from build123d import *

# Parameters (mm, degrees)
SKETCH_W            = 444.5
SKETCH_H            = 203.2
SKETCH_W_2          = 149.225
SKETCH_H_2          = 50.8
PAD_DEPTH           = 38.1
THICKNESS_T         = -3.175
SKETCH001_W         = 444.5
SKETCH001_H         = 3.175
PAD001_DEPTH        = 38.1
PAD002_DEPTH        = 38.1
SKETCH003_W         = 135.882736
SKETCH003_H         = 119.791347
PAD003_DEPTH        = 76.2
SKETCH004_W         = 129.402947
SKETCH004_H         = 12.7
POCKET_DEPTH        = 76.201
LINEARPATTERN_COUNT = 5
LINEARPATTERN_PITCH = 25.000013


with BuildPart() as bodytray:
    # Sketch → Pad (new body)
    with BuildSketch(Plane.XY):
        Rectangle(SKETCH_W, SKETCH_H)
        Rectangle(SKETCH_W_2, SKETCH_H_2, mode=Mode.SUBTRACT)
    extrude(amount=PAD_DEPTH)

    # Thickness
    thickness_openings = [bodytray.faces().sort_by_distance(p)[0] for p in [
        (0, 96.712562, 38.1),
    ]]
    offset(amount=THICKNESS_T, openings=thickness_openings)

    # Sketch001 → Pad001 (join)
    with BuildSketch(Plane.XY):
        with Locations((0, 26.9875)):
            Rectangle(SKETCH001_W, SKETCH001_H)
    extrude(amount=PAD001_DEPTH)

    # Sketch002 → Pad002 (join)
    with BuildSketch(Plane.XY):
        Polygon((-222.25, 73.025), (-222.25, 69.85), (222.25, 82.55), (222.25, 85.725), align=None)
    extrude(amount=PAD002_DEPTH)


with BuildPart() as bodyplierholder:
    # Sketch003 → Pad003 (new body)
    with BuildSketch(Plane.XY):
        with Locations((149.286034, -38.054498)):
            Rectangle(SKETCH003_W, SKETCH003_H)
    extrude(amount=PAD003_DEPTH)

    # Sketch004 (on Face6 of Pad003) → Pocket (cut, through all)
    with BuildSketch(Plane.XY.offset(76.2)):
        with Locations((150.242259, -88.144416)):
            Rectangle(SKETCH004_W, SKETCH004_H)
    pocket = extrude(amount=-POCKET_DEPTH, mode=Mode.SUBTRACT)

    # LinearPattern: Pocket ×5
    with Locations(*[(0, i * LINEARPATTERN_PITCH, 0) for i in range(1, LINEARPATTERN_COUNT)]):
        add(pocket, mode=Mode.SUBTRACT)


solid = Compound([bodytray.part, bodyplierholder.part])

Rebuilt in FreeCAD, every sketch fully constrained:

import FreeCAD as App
import Part
import Sketcher
from FreeCAD import Vector
Q = App.Units.Quantity


def faces_at(feature, points):
    """Names of the faces that lie closest to the given points."""
    faces = feature.Shape.Faces
    near = lambda p: min(range(len(faces)), key=lambda i: faces[i].distToShape(Part.Vertex(*p))[0])
    return sorted({f"Face{near(p) + 1}" for p in points})

doc = App.newDocument("Part")
body = doc.addObject("PartDesign::Body", "Body")

# Sketch on XY plane
sketch1 = body.newObject("Sketcher::SketchObject", "Sketch")
sketch1.AttachmentSupport = (doc.getObject("XY_Plane"), [""])
sketch1.MapMode = "FlatFace"
sketch1.addGeometry(Part.LineSegment(Vector(-222, 102, 0), Vector(-222, -102, 0)), False)
sketch1.addGeometry(Part.LineSegment(Vector(-222, -102, 0), Vector(222, -102, 0)), False)
sketch1.addGeometry(Part.LineSegment(Vector(222, -102, 0), Vector(222, 102, 0)), False)
sketch1.addGeometry(Part.LineSegment(Vector(222, 102, 0), Vector(-222, 102, 0)), False)
sketch1.addGeometry(Part.LineSegment(Vector(75, -25, 0), Vector(-75, -25, 0)), False)
sketch1.addGeometry(Part.LineSegment(Vector(-75, -25, 0), Vector(-75, 25, 0)), False)
sketch1.addGeometry(Part.LineSegment(Vector(-75, 25, 0), Vector(75, 25, 0)), False)
sketch1.addGeometry(Part.LineSegment(Vector(75, 25, 0), Vector(75, -25, 0)), False)
sketch1.addConstraint(Sketcher.Constraint("Coincident", 0, 2, 1, 1))
sketch1.addConstraint(Sketcher.Constraint("Coincident", 1, 2, 2, 1))
sketch1.addConstraint(Sketcher.Constraint("Coincident", 2, 2, 3, 1))
sketch1.addConstraint(Sketcher.Constraint("Coincident", 3, 2, 0, 1))
sketch1.addConstraint(Sketcher.Constraint("Coincident", 4, 2, 5, 1))
sketch1.addConstraint(Sketcher.Constraint("Coincident", 5, 2, 6, 1))
sketch1.addConstraint(Sketcher.Constraint("Coincident", 6, 2, 7, 1))
sketch1.addConstraint(Sketcher.Constraint("Coincident", 7, 2, 4, 1))
sketch1.addConstraint(Sketcher.Constraint("Vertical", 0))
sketch1.addConstraint(Sketcher.Constraint("Horizontal", 1))
sketch1.addConstraint(Sketcher.Constraint("Vertical", 2))
sketch1.addConstraint(Sketcher.Constraint("Horizontal", 3))
sketch1.addConstraint(Sketcher.Constraint("Horizontal", 4))
sketch1.addConstraint(Sketcher.Constraint("Vertical", 5))
sketch1.addConstraint(Sketcher.Constraint("Horizontal", 6))
sketch1.addConstraint(Sketcher.Constraint("Vertical", 7))
sketch1.addConstraint(Sketcher.Constraint("Symmetric", 0, 2, 2, 2, -1, 1))
sketch1.addConstraint(Sketcher.Constraint("Symmetric", 4, 2, 6, 2, -1, 1))
sketch1.addConstraint(Sketcher.Constraint("DistanceY", 0, 2, 0, 1, Q("8 in")))
sketch1.addConstraint(Sketcher.Constraint("DistanceY", 5, 1, 5, 2, Q("2 in")))
sketch1.addConstraint(Sketcher.Constraint("DistanceX", 1, 1, 1, 2, Q("17.5 in")))
sketch1.addConstraint(Sketcher.Constraint("DistanceX", 4, 2, 4, 1, Q("5.875 in")))
pad1 = body.newObject("PartDesign::Pad", "Pad")
pad1.Profile = sketch1
pad1.Length = Q("1.5 in")
doc.recompute()

thickness = body.newObject("PartDesign::Thickness", "Thickness")
thickness.Base = (pad1, faces_at(pad1, [(-88.9, -40.64, 38.1)]))
thickness.Value = Q("0.125 in")
thickness.Reversed = True
thickness.Join = "Arc"

# Sketch on XY plane
sketch2 = body.newObject("Sketcher::SketchObject", "Sketch001")
sketch2.AttachmentSupport = (doc.getObject("XY_Plane"), [""])
sketch2.MapMode = "FlatFace"
sketch2.addGeometry(Part.LineSegment(Vector(-222.2, 28.6, 0), Vector(-222.2, 25.4, 0)), False)
sketch2.addGeometry(Part.LineSegment(Vector(-222.2, 25.4, 0), Vector(222.2, 25.4, 0)), False)
sketch2.addGeometry(Part.LineSegment(Vector(222.2, 25.4, 0), Vector(222.2, 28.6, 0)), False)
sketch2.addGeometry(Part.LineSegment(Vector(222.2, 28.6, 0), Vector(-222.2, 28.6, 0)), False)
sketch2.addConstraint(Sketcher.Constraint("Coincident", 0, 2, 1, 1))
sketch2.addConstraint(Sketcher.Constraint("Coincident", 1, 2, 2, 1))
sketch2.addConstraint(Sketcher.Constraint("Coincident", 2, 2, 3, 1))
sketch2.addConstraint(Sketcher.Constraint("Coincident", 3, 2, 0, 1))
sketch2.addConstraint(Sketcher.Constraint("Vertical", 0))
sketch2.addConstraint(Sketcher.Constraint("Horizontal", 1))
sketch2.addConstraint(Sketcher.Constraint("Vertical", 2))
sketch2.addConstraint(Sketcher.Constraint("Horizontal", 3))
sketch2.addConstraint(Sketcher.Constraint("DistanceX", 1, 1, 1, 2, Q("17.5 in")))
sketch2.addConstraint(Sketcher.Constraint("DistanceY", -1, 1, 0, 2, Q("1 in")))
sketch2.addConstraint(Sketcher.Constraint("DistanceY", 0, 2, 0, 1, Q("0.125 in")))
sketch2.addConstraint(Sketcher.Constraint("DistanceX", 0, 2, -1, 1, Q("8.75 in")))
pad2 = body.newObject("PartDesign::Pad", "Pad001")
pad2.Profile = sketch2
pad2.Length = Q("1.5 in")

# Sketch on XY plane
sketch3 = body.newObject("Sketcher::SketchObject", "Sketch002")
sketch3.AttachmentSupport = (doc.getObject("XY_Plane"), [""])
sketch3.MapMode = "FlatFace"
sketch3.addGeometry(Part.LineSegment(Vector(-222.2, 73, 0), Vector(-222.2, 69.8, 0)), False)
sketch3.addGeometry(Part.LineSegment(Vector(-222.2, 69.8, 0), Vector(222.2, 82.5, 0)), False)
sketch3.addGeometry(Part.LineSegment(Vector(222.2, 82.5, 0), Vector(222.2, 85.7, 0)), False)
sketch3.addGeometry(Part.LineSegment(Vector(222.2, 85.7, 0), Vector(-222.2, 73, 0)), False)
sketch3.addConstraint(Sketcher.Constraint("Coincident", 0, 2, 1, 1))
sketch3.addConstraint(Sketcher.Constraint("Coincident", 1, 2, 2, 1))
sketch3.addConstraint(Sketcher.Constraint("Coincident", 2, 2, 3, 1))
sketch3.addConstraint(Sketcher.Constraint("Coincident", 3, 2, 0, 1))
sketch3.addConstraint(Sketcher.Constraint("Vertical", 0))
sketch3.addConstraint(Sketcher.Constraint("Vertical", 2))
sketch3.addConstraint(Sketcher.Constraint("Parallel", 1, 3))
sketch3.addConstraint(Sketcher.Constraint("DistanceX", 0, 2, 1, 2, Q("17.5 in")))
sketch3.addConstraint(Sketcher.Constraint("DistanceY", 0, 2, 1, 2, Q("0.5 in")))
sketch3.addConstraint(Sketcher.Constraint("DistanceY", 0, 2, 0, 1, Q("0.125 in")))
sketch3.addConstraint(Sketcher.Constraint("DistanceX", 0, 2, -1, 1, Q("8.75 in")))
sketch3.addConstraint(Sketcher.Constraint("DistanceY", -1, 1, 0, 2, Q("2.75 in")))
pad3 = body.newObject("PartDesign::Pad", "Pad002")
pad3.Profile = sketch3
pad3.Length = Q("1.5 in")
body2 = doc.addObject("PartDesign::Body", "Body001")

# Sketch on XY plane
sketch4 = body2.newObject("Sketcher::SketchObject", "Sketch003")
sketch4.AttachmentSupport = (doc.getObject("XY_Plane001"), [""])
sketch4.MapMode = "FlatFace"
sketch4.addGeometry(Part.LineSegment(Vector(81, 22, 0), Vector(81, -98, 0)), False)
sketch4.addGeometry(Part.LineSegment(Vector(81, -98, 0), Vector(217, -98, 0)), False)
sketch4.addGeometry(Part.LineSegment(Vector(217, -98, 0), Vector(217, 22, 0)), False)
sketch4.addGeometry(Part.LineSegment(Vector(217, 22, 0), Vector(81, 22, 0)), False)
sketch4.addConstraint(Sketcher.Constraint("Coincident", 0, 2, 1, 1))
sketch4.addConstraint(Sketcher.Constraint("Coincident", 1, 2, 2, 1))
sketch4.addConstraint(Sketcher.Constraint("Coincident", 2, 2, 3, 1))
sketch4.addConstraint(Sketcher.Constraint("Coincident", 3, 2, 0, 1))
sketch4.addConstraint(Sketcher.Constraint("Vertical", 0))
sketch4.addConstraint(Sketcher.Constraint("Horizontal", 1))
sketch4.addConstraint(Sketcher.Constraint("Vertical", 2))
sketch4.addConstraint(Sketcher.Constraint("Horizontal", 3))
sketch4.addConstraint(Sketcher.Constraint("DistanceX", 1, 1, 1, 2, 135.882736))
sketch4.addConstraint(Sketcher.Constraint("DistanceY", 0, 2, 0, 1, 119.791347))
sketch4.addConstraint(Sketcher.Constraint("DistanceY", 0, 2, -1, 1, 97.950171))
sketch4.addConstraint(Sketcher.Constraint("DistanceX", -1, 1, 0, 2, 81.344666))
pad4 = body2.newObject("PartDesign::Pad", "Pad003")
pad4.Profile = sketch4
pad4.Length = Q("3 in")

# Sketch on XY plane
sketch5 = body2.newObject("Sketcher::SketchObject", "Sketch004")
sketch5.AttachmentSupport = (doc.getObject("XY_Plane001"), [""])
sketch5.MapMode = "FlatFace"
sketch5.AttachmentOffset = App.Placement(Vector(0, 0, 3 * 25.4), App.Rotation())
sketch5.addGeometry(Part.LineSegment(Vector(86, -82, 0), Vector(86, -94, 0)), False)
sketch5.addGeometry(Part.LineSegment(Vector(86, -94, 0), Vector(215, -94, 0)), False)
sketch5.addGeometry(Part.LineSegment(Vector(215, -94, 0), Vector(215, -82, 0)), False)
sketch5.addGeometry(Part.LineSegment(Vector(215, -82, 0), Vector(86, -82, 0)), False)
sketch5.addConstraint(Sketcher.Constraint("Coincident", 0, 2, 1, 1))
sketch5.addConstraint(Sketcher.Constraint("Coincident", 1, 2, 2, 1))
sketch5.addConstraint(Sketcher.Constraint("Coincident", 2, 2, 3, 1))
sketch5.addConstraint(Sketcher.Constraint("Coincident", 3, 2, 0, 1))
sketch5.addConstraint(Sketcher.Constraint("Vertical", 0))
sketch5.addConstraint(Sketcher.Constraint("Horizontal", 1))
sketch5.addConstraint(Sketcher.Constraint("Vertical", 2))
sketch5.addConstraint(Sketcher.Constraint("Horizontal", 3))
sketch5.addConstraint(Sketcher.Constraint("DistanceY", 0, 2, 0, 1, Q("0.5 in")))
sketch5.addConstraint(Sketcher.Constraint("DistanceX", 1, 1, 1, 2, 129.402947))
sketch5.addConstraint(Sketcher.Constraint("DistanceX", -1, 1, 0, 2, 85.540785))
sketch5.addConstraint(Sketcher.Constraint("DistanceY", 0, 2, -1, 1, 94.494416))
pocket1 = body2.newObject("PartDesign::Pocket", "Pocket")
pocket1.Profile = sketch5
pocket1.Type = "ThroughAll"
doc.recompute()

linearpattern = body2.newObject("PartDesign::LinearPattern", "LinearPattern")
linearpattern.Originals = [pocket1]
linearpattern.Direction = (doc.getObject("Y_Axis001"), [""])
linearpattern.Mode = "offset"
linearpattern.Offset = 25.000013
linearpattern.Occurrences = 5
body2.Tip = linearpattern

doc.recompute()
